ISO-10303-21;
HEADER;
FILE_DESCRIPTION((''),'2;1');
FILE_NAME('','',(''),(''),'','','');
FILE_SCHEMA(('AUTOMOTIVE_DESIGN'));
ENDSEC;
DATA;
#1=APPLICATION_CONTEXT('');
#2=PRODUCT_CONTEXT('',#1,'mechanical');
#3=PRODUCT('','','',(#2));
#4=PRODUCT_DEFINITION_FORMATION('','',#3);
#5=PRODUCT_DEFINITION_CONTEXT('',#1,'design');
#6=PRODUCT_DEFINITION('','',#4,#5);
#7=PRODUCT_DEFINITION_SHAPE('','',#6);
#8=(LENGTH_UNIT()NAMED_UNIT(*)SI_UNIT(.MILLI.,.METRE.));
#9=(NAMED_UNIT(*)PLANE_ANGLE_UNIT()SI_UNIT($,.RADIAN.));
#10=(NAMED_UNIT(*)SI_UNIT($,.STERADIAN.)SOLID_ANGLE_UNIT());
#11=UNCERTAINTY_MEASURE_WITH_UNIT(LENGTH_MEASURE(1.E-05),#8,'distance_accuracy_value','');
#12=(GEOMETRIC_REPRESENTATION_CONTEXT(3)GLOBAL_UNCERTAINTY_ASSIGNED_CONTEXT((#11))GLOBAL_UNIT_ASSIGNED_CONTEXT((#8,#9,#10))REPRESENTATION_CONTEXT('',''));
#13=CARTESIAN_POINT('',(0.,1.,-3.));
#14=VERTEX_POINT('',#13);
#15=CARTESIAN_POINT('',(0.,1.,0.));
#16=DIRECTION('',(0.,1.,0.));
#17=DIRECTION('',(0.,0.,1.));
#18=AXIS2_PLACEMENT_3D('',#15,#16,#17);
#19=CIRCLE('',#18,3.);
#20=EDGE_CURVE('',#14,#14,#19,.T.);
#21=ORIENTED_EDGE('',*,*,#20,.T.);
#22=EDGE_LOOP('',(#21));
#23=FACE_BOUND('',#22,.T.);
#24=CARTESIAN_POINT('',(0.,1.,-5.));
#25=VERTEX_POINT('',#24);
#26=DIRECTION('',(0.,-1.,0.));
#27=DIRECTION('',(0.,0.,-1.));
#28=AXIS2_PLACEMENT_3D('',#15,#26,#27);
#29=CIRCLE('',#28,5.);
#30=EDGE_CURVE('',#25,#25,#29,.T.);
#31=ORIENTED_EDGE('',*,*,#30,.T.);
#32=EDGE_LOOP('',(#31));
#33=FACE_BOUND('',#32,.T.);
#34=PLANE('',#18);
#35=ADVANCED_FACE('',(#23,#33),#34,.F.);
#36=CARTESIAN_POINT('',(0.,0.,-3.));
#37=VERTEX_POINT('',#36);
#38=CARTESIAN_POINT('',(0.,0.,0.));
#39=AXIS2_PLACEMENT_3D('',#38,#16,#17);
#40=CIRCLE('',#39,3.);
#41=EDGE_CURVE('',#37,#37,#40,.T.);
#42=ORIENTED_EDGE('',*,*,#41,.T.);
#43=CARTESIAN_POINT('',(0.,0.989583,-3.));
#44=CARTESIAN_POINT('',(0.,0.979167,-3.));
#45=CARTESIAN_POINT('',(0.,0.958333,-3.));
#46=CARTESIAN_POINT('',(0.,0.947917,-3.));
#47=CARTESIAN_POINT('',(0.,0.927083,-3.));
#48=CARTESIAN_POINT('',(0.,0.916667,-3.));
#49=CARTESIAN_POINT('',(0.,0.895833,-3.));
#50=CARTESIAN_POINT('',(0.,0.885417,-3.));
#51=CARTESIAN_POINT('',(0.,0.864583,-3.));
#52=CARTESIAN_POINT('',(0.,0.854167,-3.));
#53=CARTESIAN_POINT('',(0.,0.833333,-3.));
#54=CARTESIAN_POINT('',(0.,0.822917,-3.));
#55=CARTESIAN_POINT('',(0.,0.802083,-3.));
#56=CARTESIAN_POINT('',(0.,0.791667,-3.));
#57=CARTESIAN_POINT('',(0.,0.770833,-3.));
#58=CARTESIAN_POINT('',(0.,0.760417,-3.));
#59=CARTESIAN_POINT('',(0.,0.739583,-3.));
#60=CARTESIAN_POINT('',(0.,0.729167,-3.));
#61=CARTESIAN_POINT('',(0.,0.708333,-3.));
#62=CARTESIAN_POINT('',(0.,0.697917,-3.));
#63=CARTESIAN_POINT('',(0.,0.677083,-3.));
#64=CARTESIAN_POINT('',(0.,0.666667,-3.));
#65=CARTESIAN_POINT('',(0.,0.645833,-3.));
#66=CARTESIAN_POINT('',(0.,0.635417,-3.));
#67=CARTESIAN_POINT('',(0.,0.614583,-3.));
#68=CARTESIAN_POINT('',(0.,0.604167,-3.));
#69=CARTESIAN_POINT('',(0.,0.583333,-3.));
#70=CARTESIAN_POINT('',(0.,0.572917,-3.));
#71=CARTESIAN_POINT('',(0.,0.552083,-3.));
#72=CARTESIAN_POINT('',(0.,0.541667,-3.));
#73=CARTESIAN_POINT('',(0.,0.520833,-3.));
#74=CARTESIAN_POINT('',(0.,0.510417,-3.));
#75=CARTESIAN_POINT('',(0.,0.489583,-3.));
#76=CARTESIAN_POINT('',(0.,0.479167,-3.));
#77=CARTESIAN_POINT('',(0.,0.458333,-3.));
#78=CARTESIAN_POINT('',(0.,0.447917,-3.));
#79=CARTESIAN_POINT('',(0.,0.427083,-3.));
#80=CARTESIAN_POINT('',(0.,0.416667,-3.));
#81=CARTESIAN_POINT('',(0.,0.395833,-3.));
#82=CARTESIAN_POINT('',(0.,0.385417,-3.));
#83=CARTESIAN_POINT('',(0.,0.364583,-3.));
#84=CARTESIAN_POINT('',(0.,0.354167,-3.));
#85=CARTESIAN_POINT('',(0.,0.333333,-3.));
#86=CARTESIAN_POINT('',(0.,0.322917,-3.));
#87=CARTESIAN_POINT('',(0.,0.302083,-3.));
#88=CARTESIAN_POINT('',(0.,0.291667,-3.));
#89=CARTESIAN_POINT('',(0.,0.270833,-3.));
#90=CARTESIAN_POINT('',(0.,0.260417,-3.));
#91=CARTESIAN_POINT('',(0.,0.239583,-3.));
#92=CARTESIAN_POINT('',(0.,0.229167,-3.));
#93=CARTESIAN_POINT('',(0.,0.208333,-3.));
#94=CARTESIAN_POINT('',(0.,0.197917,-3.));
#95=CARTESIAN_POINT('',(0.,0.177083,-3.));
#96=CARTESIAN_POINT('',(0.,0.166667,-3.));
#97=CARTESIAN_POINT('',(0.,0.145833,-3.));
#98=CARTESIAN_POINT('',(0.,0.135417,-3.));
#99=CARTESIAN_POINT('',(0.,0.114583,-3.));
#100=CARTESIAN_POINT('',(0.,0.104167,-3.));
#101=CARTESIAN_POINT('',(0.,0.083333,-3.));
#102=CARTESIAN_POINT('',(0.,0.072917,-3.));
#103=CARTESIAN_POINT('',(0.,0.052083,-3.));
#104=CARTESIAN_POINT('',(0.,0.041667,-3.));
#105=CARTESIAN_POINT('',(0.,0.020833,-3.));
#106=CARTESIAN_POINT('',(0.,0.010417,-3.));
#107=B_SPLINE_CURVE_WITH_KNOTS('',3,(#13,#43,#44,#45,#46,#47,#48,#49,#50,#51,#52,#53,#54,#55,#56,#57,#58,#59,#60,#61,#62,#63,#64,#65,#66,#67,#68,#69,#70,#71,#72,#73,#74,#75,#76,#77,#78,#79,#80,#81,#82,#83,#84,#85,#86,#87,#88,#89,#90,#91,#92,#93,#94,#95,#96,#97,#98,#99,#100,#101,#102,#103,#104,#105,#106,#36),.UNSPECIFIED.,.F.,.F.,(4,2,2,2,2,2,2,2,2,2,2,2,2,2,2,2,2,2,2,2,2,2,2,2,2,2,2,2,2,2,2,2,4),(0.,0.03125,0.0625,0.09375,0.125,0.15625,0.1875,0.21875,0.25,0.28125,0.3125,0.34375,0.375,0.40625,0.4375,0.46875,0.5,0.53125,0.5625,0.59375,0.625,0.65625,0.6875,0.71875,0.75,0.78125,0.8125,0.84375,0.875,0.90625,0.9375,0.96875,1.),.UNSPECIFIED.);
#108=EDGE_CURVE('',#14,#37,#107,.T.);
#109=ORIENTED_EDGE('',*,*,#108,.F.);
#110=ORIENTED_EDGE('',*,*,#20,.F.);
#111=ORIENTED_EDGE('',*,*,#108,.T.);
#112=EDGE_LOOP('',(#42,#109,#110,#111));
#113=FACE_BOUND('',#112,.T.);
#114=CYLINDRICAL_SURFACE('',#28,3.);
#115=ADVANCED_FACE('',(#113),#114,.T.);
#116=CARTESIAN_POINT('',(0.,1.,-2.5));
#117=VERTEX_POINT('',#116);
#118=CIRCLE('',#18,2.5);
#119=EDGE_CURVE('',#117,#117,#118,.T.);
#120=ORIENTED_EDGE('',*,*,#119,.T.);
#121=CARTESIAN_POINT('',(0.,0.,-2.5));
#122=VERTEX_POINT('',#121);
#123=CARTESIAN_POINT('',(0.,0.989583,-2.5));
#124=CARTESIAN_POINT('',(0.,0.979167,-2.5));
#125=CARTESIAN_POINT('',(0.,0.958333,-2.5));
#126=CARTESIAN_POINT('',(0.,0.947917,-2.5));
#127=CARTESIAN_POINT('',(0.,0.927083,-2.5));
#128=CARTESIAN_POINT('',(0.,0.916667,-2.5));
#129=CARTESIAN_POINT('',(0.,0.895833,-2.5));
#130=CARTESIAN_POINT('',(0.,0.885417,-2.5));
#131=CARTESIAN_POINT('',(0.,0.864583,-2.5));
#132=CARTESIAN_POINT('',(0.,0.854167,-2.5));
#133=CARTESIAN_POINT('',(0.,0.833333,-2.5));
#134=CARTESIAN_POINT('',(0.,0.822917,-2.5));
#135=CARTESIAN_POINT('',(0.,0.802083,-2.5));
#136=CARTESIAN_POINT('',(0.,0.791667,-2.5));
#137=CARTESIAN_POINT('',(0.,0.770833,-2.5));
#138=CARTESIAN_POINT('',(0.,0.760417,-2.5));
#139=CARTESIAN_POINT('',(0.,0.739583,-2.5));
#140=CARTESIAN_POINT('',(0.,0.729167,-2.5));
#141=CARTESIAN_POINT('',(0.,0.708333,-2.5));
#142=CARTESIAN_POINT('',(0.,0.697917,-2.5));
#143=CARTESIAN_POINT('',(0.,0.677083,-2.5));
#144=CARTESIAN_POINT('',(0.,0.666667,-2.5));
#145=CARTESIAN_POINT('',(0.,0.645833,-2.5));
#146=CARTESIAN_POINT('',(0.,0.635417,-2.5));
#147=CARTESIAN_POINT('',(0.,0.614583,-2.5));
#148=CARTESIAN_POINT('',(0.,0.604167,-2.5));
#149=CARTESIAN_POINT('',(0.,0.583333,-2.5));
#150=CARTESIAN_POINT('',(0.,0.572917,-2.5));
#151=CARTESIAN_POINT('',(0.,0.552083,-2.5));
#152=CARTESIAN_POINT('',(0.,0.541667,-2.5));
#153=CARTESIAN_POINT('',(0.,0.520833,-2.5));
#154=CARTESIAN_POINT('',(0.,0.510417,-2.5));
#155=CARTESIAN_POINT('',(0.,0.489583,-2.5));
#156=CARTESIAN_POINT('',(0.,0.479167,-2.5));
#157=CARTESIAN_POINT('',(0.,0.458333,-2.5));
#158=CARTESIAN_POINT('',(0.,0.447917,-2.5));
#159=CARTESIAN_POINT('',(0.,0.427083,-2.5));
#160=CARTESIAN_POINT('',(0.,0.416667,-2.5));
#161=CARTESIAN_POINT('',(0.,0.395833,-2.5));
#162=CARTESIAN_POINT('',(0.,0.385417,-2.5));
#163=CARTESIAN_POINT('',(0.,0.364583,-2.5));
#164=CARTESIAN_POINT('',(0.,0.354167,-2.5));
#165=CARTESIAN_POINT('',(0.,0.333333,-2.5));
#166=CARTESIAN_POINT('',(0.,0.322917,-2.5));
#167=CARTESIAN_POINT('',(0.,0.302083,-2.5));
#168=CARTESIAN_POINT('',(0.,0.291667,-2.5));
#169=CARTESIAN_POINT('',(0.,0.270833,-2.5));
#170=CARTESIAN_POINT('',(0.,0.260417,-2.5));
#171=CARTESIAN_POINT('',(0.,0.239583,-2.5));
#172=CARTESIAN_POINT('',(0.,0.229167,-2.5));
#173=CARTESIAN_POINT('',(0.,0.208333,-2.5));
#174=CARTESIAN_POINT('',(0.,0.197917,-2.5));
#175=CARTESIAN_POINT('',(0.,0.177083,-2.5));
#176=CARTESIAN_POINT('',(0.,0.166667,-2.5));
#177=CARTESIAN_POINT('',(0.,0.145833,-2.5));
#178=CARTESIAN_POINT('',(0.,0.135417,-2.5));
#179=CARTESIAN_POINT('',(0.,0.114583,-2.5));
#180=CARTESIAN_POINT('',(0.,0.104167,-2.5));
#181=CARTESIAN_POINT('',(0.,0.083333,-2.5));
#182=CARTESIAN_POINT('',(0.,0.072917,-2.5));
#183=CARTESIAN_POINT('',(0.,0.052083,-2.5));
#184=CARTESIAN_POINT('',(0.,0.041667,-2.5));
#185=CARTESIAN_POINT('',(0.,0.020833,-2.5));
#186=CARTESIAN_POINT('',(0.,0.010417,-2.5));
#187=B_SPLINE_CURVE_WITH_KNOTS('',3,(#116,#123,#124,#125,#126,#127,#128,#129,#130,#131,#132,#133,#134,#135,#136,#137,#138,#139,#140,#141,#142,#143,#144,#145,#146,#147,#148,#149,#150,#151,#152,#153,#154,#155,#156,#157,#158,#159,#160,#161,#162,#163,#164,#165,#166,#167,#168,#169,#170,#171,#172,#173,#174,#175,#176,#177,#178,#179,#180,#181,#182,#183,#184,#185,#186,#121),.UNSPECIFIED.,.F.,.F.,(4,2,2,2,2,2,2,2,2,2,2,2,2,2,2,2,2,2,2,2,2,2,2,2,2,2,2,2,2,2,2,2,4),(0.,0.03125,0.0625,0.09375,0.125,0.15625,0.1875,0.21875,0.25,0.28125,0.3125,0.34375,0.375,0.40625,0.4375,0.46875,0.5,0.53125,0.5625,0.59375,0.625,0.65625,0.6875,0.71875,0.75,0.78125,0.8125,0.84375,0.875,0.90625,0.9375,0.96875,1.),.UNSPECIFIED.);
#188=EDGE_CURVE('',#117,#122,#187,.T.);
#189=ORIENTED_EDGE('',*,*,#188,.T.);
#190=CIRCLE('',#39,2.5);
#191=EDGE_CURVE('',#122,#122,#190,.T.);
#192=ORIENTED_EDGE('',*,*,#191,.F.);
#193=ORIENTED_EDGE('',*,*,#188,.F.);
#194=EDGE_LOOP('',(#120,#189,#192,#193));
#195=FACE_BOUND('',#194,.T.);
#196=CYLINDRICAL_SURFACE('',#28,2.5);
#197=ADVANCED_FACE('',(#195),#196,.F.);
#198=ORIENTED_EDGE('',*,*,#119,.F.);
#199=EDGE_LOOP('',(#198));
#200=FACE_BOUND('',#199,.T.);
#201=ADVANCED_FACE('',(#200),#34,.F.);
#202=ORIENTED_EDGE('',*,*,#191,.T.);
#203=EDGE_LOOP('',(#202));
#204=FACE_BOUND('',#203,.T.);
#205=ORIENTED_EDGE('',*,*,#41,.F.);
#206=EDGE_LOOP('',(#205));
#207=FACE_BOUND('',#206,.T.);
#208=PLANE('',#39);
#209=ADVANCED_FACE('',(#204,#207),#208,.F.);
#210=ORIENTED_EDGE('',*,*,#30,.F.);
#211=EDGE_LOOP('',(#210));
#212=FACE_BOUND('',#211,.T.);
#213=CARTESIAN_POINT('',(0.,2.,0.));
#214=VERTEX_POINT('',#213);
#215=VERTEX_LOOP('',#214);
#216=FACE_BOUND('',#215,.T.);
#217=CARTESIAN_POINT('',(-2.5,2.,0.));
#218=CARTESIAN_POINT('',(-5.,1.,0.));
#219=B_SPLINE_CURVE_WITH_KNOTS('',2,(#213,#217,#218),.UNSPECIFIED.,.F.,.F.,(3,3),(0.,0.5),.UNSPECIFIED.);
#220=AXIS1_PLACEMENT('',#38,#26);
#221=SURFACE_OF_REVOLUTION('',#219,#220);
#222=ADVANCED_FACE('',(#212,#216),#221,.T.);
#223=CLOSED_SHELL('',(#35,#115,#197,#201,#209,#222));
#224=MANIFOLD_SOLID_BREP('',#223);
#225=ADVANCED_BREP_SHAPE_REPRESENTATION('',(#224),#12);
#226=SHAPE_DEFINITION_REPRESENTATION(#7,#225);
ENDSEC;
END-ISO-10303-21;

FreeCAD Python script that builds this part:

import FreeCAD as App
import Part
import Sketcher

V = App.Vector
Q = App.Units.Quantity

doc = App.newDocument("Part")
params = doc.addObject("Spreadsheet::Sheet", "Params")
for row, (alias, value) in enumerate([
    ("sketch1_diameter", "6 mm"),
    ("sketch1_diameter2", "5 mm"),
    ("pad1_length", "1 mm"),
    ("revolution_angle", "360 deg"),
], start=1):
    params.set(f"A{row}", alias)
    params.set(f"B{row}", "=" + value)
    params.setAlias(f"B{row}", alias)

body = doc.addObject("PartDesign::Body", "Body")

sketch1 = body.newObject("Sketcher::SketchObject", "Sketch")
sketch1.AttachmentSupport = (doc.getObject("XZ_Plane"), [""])
sketch1.MapMode = "FlatFace"
sketch1.addGeometry([
    Part.Circle(V(0, 0, 0), V(0, 0, 1), 3),
    Part.Circle(V(0, 0, 0), V(0, 0, 1), 2.5),
], False)
sketch1.addConstraint([
    Sketcher.Constraint("Coincident", 0, 3, -1, 1),
    Sketcher.Constraint("Coincident", 1, 3, -1, 1),
    Sketcher.Constraint("Diameter", 0, Q("6 mm")),
    Sketcher.Constraint("Diameter", 1, Q("5 mm")),
])
sketch1.setExpression("Constraints[2]", "Params.sketch1_diameter")
sketch1.setExpression("Constraints[3]", "Params.sketch1_diameter2")
pad1 = body.newObject("PartDesign::Pad", "Pad")
pad1.Profile = sketch1
pad1.setExpression("Length", "Params.pad1_length")
pad1.Reversed = True

sketch2 = body.newObject("Sketcher::SketchObject", "Sketch001")
sketch2.AttachmentSupport = (doc.getObject("XY_Plane"), [""])
sketch2.MapMode = "FlatFace"
sketch2.addGeometry([
    Part.LineSegment(V(-5, 1, 0), V(0, 1, 0)),
    Part.LineSegment(V(0, 1, 0), V(0, 2, 0)),
    Part.BSplineCurve([V(-5, 1, 0), V(-2.5, 2, 0), V(0, 2, 0)], [3, 3], [0, 0.5], False, 2, [1, 1, 1], False),
], False)
sketch2.addConstraint([
    Sketcher.Constraint("Block", 2),
    Sketcher.Constraint("Coincident", 0, 2, 1, 1),
    Sketcher.Constraint("Coincident", 1, 2, 2, 2),
    Sketcher.Constraint("Coincident", 2, 1, 0, 1),
    Sketcher.Constraint("Horizontal", 0),
    Sketcher.Constraint("Vertical", 1),
])
revolution = body.newObject("PartDesign::Revolution", "Revolution")
revolution.Profile = sketch2
revolution.ReferenceAxis = (sketch2, ["V_Axis"])
revolution.setExpression("Angle", "Params.revolution_angle")

doc.recompute()
